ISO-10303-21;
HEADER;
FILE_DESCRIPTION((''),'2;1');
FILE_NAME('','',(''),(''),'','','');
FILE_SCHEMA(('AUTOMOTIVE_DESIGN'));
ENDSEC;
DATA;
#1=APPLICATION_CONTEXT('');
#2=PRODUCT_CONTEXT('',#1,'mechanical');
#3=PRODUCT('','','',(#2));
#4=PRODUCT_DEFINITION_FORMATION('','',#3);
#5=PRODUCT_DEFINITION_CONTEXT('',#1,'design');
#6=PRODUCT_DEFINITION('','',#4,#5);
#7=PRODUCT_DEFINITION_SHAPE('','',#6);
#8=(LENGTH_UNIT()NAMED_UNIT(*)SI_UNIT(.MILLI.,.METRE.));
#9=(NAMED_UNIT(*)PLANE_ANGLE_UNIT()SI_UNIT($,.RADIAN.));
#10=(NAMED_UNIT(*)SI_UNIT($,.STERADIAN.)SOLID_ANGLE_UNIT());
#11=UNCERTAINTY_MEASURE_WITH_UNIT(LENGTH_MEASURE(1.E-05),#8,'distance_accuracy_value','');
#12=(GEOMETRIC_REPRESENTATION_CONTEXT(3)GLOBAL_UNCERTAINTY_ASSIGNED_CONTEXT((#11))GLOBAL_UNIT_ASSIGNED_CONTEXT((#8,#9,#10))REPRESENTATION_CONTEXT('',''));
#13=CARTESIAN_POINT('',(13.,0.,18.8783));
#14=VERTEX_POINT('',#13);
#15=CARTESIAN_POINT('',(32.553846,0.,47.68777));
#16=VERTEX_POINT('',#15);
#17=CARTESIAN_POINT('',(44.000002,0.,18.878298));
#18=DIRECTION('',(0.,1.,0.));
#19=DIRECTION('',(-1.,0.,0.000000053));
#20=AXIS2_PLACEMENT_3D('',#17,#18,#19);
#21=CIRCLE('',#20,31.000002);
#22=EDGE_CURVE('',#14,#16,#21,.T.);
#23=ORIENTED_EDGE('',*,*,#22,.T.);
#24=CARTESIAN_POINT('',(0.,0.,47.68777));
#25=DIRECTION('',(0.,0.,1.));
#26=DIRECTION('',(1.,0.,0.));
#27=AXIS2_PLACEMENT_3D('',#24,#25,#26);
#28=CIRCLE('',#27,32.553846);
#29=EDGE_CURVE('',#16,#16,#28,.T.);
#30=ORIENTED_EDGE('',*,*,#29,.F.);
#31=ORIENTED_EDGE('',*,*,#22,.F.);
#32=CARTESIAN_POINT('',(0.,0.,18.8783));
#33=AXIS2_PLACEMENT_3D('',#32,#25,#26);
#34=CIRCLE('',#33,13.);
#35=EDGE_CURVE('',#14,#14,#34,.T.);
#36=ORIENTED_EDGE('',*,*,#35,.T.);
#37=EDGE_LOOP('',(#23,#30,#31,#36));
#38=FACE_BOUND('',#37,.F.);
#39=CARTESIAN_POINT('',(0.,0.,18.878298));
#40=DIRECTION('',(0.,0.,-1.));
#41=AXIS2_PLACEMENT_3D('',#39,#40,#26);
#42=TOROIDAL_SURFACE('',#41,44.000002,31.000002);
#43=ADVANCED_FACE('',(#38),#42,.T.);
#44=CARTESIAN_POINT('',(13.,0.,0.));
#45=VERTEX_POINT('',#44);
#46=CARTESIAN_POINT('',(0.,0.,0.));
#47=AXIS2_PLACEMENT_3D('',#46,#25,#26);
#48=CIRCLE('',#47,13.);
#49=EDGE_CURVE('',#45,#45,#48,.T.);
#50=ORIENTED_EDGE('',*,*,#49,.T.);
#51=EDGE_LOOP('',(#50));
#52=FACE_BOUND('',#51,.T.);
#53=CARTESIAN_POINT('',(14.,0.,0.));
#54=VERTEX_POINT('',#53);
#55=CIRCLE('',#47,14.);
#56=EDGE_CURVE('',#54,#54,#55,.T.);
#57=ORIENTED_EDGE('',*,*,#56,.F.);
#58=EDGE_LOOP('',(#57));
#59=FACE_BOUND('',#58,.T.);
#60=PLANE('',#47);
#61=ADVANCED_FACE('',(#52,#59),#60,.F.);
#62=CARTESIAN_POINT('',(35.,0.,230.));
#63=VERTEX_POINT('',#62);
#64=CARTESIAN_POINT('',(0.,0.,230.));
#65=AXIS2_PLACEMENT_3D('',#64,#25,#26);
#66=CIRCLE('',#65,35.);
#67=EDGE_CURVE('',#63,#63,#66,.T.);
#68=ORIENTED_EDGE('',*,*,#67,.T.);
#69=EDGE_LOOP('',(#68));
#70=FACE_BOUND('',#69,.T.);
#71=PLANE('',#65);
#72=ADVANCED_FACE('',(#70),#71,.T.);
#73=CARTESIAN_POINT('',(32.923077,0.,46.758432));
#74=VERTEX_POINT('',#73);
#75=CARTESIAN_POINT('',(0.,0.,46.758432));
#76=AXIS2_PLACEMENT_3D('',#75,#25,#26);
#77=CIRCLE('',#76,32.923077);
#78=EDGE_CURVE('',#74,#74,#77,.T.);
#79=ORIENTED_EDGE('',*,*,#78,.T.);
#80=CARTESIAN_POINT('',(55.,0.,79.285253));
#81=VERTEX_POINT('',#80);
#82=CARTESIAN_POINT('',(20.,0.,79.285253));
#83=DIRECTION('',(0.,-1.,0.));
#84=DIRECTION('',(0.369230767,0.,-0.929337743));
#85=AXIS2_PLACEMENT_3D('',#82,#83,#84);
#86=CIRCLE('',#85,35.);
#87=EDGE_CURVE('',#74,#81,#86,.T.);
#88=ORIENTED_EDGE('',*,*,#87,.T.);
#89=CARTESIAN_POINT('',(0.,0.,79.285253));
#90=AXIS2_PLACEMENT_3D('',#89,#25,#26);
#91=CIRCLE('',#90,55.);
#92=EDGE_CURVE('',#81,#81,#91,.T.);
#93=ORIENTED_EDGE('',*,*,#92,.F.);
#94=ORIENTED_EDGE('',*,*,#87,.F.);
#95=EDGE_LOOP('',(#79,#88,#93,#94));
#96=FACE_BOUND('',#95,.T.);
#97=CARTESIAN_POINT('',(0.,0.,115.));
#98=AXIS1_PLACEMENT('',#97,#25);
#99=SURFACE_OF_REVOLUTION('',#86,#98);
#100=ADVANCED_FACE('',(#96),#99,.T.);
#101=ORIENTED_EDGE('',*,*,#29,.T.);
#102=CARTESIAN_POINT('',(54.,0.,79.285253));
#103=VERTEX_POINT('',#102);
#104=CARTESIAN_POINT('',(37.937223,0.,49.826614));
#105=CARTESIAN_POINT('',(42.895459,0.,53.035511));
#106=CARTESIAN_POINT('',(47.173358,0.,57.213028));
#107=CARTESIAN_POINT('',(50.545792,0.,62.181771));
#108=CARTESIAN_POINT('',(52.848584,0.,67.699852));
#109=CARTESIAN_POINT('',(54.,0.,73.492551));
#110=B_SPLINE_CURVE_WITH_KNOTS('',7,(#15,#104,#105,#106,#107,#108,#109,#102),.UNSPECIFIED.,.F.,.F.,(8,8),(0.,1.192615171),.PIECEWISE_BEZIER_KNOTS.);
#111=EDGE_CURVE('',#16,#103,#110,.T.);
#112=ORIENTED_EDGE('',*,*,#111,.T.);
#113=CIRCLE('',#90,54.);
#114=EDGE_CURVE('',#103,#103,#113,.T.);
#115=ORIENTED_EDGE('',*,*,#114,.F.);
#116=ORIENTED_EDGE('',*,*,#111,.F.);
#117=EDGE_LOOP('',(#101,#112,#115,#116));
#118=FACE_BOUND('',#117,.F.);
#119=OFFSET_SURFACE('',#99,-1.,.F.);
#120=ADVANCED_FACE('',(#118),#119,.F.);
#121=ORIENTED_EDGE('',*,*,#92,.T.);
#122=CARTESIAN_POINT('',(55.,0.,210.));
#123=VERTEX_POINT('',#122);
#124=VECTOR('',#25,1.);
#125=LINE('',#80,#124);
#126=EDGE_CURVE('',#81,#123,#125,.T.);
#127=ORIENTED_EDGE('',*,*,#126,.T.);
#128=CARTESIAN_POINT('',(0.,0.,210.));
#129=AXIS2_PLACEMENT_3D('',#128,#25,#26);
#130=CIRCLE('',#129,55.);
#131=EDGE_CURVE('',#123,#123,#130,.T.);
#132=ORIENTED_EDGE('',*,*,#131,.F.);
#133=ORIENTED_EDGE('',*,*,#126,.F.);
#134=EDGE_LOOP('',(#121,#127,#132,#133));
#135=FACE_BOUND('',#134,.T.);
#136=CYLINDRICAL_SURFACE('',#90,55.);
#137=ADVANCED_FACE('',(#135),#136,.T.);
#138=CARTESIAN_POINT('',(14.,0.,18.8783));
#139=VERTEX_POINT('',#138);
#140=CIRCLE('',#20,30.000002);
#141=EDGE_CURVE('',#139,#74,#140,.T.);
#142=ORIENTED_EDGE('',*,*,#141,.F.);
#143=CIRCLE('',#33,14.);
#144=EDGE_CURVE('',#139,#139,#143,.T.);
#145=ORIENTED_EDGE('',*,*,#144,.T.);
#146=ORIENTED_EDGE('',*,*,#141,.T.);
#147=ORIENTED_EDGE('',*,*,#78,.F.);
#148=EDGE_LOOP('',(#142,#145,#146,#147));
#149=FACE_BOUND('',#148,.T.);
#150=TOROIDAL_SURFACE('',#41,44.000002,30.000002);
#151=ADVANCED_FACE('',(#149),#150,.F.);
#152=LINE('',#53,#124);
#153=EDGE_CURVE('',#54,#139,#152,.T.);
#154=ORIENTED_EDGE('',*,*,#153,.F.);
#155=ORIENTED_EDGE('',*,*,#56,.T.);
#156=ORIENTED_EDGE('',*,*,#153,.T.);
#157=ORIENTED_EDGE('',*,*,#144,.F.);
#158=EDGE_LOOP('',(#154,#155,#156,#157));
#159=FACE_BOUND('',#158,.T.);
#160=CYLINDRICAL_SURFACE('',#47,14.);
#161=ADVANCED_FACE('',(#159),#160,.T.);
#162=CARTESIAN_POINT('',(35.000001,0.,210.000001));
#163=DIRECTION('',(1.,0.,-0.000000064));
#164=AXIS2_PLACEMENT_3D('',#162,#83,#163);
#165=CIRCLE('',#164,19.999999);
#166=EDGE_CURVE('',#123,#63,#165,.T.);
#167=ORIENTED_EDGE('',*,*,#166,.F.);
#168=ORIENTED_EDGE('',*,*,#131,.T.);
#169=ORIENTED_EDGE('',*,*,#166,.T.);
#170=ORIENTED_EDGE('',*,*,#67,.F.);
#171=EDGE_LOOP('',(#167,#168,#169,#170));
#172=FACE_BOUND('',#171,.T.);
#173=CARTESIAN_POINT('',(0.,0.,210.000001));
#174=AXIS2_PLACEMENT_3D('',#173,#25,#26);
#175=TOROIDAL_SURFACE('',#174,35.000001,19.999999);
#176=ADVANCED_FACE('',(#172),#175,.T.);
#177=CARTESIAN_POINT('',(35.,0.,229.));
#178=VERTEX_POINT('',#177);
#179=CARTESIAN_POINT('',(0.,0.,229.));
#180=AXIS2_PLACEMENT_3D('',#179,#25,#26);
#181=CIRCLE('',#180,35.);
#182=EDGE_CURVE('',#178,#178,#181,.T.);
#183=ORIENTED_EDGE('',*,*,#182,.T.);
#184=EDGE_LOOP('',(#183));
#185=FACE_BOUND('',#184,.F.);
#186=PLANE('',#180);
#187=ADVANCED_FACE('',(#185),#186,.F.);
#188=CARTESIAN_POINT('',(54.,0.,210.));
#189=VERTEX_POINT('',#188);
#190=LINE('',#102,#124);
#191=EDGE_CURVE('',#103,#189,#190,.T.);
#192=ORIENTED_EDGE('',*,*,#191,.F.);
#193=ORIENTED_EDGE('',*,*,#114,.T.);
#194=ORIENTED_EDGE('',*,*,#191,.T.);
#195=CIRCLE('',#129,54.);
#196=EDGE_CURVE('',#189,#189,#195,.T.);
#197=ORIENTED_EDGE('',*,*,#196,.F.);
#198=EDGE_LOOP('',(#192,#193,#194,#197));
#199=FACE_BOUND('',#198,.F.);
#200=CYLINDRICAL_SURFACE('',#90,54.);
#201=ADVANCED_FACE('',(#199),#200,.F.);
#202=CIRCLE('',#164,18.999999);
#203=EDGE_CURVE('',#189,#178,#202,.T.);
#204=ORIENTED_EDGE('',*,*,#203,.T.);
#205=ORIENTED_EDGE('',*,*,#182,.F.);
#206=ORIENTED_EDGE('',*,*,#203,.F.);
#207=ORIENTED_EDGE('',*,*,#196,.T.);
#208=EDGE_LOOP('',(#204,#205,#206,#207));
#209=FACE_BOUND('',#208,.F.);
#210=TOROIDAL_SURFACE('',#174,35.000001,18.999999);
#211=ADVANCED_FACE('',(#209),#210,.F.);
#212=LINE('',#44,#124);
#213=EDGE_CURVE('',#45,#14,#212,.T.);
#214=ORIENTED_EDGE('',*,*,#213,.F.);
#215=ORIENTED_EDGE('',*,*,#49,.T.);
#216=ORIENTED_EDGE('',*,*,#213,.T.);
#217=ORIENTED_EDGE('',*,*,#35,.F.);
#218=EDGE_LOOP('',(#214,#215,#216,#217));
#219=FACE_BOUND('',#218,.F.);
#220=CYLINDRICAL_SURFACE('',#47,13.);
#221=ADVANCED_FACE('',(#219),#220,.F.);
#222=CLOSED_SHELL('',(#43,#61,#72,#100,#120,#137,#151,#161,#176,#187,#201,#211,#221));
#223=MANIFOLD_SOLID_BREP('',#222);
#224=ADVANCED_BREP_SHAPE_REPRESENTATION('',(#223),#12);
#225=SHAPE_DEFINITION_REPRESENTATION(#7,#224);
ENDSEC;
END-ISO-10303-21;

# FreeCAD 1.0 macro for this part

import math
import FreeCAD as App
import Part
import Sketcher


def faces_at(feature, points):
    """Names of the faces that lie closest to the given points."""
    faces = feature.Shape.Faces
    near = lambda p: min(range(len(faces)), key=lambda i: faces[i].distToShape(Part.Vertex(*p))[0])
    return sorted({f"Face{near(p) + 1}" for p in points})

doc = App.newDocument("Part")
params = doc.addObject("Spreadsheet::Sheet", "Params")
for row, (alias, value) in enumerate([
    ("sketch1_radius", "30.000002 mm"),
    ("sketch1_radius2", "35 mm"),
    ("sketch1_radius3", "19.999999 mm"),
    ("sketch1_width", "14 mm"),
    ("sketch1_width2", "35 mm"),
    ("revolution_angle", "360 deg"),
    ("thickness_wall", "1 mm"),
], start=1):
    params.set(f"A{row}", alias)
    params.set(f"B{row}", "=" + value)
    params.setAlias(f"B{row}", alias)

body = doc.addObject("PartDesign::Body", "Body")

# Sketch on XZ plane
sketch1 = body.newObject("Sketcher::SketchObject", "Sketch")
sketch1.AttachmentSupport = (doc.getObject("XZ_Plane"), [""])
sketch1.MapMode = "FlatFace"
sketch1.addGeometry([
    Part.LineSegment(App.Vector(0, 230, 0), App.Vector(0, 0, 0)),  # 0
    Part.LineSegment(App.Vector(0, 0, 0), App.Vector(14, 0, 0)),  # 1
    Part.LineSegment(App.Vector(14, 0, 0), App.Vector(14, 19, 0)),  # 2
    Part.ArcOfCircle(Part.Circle(App.Vector(44, 19, 0), App.Vector(0, 0, 1), 30), math.radians(112), math.radians(180)),  # 3
    Part.ArcOfCircle(Part.Circle(App.Vector(20, 79, 0), App.Vector(0, 0, 1), 35), math.radians(-68), math.radians(0)),  # 4
    Part.LineSegment(App.Vector(55, 79, 0), App.Vector(55, 210, 0)),  # 5
    Part.ArcOfCircle(Part.Circle(App.Vector(35, 210, 0), App.Vector(0, 0, 1), 20), math.radians(0), math.radians(90)),  # 6
    Part.LineSegment(App.Vector(35, 230, 0), App.Vector(0, 230, 0)),  # 7
], False)
sketch1.addConstraint([
    Sketcher.Constraint("Coincident", 0, 2, 1, 1),
    Sketcher.Constraint("Coincident", 1, 2, 2, 1),
    Sketcher.Constraint("Tangent", 2, 2, 3, 2),
    Sketcher.Constraint("Tangent", 3, 1, 4, 1),
    Sketcher.Constraint("Tangent", 4, 2, 5, 1),
    Sketcher.Constraint("Tangent", 5, 2, 6, 1),
    Sketcher.Constraint("Tangent", 6, 2, 7, 1),
    Sketcher.Constraint("Coincident", 7, 2, 0, 1),
    Sketcher.Constraint("Vertical", 0),
    Sketcher.Constraint("Horizontal", 1),
    Sketcher.Constraint("Vertical", 2),
    Sketcher.Constraint("Vertical", 5),
    Sketcher.Constraint("Horizontal", 7),
    Sketcher.Constraint("Coincident", 0, 2, -1, 1),
    Sketcher.Constraint("Radius", 3, 30.000002),
    Sketcher.Constraint("Radius", 4, 35.0),
    Sketcher.Constraint("Radius", 6, 19.999999),
    Sketcher.Constraint("DistanceX", 1, 1, 1, 2, 14.0),
    Sketcher.Constraint("DistanceX", 7, 2, 7, 1, 35.0),
    Sketcher.Constraint("DistanceY", 0, 2, 0, 1, 230.0),
    Sketcher.Constraint("DistanceY", 2, 1, 2, 2, 18.8783),
])
sketch1.setExpression("Constraints[14]", "Params.sketch1_radius")
sketch1.setExpression("Constraints[15]", "Params.sketch1_radius2")
sketch1.setExpression("Constraints[16]", "Params.sketch1_radius3")
sketch1.setExpression("Constraints[17]", "Params.sketch1_width")
sketch1.setExpression("Constraints[18]", "Params.sketch1_width2")
revolution = body.newObject("PartDesign::Revolution", "Revolution")
revolution.Profile = sketch1
revolution.ReferenceAxis = (sketch1, ["V_Axis"])
revolution.setExpression("Angle", "Params.revolution_angle")
doc.recompute()

thickness = body.newObject("PartDesign::Thickness", "Thickness")
thickness.Base = (revolution, faces_at(revolution, [(0, 0, 0)]))
thickness.setExpression("Value", "Params.thickness_wall")
thickness.Reversed = True
thickness.Join = "Arc"

doc.recompute()
